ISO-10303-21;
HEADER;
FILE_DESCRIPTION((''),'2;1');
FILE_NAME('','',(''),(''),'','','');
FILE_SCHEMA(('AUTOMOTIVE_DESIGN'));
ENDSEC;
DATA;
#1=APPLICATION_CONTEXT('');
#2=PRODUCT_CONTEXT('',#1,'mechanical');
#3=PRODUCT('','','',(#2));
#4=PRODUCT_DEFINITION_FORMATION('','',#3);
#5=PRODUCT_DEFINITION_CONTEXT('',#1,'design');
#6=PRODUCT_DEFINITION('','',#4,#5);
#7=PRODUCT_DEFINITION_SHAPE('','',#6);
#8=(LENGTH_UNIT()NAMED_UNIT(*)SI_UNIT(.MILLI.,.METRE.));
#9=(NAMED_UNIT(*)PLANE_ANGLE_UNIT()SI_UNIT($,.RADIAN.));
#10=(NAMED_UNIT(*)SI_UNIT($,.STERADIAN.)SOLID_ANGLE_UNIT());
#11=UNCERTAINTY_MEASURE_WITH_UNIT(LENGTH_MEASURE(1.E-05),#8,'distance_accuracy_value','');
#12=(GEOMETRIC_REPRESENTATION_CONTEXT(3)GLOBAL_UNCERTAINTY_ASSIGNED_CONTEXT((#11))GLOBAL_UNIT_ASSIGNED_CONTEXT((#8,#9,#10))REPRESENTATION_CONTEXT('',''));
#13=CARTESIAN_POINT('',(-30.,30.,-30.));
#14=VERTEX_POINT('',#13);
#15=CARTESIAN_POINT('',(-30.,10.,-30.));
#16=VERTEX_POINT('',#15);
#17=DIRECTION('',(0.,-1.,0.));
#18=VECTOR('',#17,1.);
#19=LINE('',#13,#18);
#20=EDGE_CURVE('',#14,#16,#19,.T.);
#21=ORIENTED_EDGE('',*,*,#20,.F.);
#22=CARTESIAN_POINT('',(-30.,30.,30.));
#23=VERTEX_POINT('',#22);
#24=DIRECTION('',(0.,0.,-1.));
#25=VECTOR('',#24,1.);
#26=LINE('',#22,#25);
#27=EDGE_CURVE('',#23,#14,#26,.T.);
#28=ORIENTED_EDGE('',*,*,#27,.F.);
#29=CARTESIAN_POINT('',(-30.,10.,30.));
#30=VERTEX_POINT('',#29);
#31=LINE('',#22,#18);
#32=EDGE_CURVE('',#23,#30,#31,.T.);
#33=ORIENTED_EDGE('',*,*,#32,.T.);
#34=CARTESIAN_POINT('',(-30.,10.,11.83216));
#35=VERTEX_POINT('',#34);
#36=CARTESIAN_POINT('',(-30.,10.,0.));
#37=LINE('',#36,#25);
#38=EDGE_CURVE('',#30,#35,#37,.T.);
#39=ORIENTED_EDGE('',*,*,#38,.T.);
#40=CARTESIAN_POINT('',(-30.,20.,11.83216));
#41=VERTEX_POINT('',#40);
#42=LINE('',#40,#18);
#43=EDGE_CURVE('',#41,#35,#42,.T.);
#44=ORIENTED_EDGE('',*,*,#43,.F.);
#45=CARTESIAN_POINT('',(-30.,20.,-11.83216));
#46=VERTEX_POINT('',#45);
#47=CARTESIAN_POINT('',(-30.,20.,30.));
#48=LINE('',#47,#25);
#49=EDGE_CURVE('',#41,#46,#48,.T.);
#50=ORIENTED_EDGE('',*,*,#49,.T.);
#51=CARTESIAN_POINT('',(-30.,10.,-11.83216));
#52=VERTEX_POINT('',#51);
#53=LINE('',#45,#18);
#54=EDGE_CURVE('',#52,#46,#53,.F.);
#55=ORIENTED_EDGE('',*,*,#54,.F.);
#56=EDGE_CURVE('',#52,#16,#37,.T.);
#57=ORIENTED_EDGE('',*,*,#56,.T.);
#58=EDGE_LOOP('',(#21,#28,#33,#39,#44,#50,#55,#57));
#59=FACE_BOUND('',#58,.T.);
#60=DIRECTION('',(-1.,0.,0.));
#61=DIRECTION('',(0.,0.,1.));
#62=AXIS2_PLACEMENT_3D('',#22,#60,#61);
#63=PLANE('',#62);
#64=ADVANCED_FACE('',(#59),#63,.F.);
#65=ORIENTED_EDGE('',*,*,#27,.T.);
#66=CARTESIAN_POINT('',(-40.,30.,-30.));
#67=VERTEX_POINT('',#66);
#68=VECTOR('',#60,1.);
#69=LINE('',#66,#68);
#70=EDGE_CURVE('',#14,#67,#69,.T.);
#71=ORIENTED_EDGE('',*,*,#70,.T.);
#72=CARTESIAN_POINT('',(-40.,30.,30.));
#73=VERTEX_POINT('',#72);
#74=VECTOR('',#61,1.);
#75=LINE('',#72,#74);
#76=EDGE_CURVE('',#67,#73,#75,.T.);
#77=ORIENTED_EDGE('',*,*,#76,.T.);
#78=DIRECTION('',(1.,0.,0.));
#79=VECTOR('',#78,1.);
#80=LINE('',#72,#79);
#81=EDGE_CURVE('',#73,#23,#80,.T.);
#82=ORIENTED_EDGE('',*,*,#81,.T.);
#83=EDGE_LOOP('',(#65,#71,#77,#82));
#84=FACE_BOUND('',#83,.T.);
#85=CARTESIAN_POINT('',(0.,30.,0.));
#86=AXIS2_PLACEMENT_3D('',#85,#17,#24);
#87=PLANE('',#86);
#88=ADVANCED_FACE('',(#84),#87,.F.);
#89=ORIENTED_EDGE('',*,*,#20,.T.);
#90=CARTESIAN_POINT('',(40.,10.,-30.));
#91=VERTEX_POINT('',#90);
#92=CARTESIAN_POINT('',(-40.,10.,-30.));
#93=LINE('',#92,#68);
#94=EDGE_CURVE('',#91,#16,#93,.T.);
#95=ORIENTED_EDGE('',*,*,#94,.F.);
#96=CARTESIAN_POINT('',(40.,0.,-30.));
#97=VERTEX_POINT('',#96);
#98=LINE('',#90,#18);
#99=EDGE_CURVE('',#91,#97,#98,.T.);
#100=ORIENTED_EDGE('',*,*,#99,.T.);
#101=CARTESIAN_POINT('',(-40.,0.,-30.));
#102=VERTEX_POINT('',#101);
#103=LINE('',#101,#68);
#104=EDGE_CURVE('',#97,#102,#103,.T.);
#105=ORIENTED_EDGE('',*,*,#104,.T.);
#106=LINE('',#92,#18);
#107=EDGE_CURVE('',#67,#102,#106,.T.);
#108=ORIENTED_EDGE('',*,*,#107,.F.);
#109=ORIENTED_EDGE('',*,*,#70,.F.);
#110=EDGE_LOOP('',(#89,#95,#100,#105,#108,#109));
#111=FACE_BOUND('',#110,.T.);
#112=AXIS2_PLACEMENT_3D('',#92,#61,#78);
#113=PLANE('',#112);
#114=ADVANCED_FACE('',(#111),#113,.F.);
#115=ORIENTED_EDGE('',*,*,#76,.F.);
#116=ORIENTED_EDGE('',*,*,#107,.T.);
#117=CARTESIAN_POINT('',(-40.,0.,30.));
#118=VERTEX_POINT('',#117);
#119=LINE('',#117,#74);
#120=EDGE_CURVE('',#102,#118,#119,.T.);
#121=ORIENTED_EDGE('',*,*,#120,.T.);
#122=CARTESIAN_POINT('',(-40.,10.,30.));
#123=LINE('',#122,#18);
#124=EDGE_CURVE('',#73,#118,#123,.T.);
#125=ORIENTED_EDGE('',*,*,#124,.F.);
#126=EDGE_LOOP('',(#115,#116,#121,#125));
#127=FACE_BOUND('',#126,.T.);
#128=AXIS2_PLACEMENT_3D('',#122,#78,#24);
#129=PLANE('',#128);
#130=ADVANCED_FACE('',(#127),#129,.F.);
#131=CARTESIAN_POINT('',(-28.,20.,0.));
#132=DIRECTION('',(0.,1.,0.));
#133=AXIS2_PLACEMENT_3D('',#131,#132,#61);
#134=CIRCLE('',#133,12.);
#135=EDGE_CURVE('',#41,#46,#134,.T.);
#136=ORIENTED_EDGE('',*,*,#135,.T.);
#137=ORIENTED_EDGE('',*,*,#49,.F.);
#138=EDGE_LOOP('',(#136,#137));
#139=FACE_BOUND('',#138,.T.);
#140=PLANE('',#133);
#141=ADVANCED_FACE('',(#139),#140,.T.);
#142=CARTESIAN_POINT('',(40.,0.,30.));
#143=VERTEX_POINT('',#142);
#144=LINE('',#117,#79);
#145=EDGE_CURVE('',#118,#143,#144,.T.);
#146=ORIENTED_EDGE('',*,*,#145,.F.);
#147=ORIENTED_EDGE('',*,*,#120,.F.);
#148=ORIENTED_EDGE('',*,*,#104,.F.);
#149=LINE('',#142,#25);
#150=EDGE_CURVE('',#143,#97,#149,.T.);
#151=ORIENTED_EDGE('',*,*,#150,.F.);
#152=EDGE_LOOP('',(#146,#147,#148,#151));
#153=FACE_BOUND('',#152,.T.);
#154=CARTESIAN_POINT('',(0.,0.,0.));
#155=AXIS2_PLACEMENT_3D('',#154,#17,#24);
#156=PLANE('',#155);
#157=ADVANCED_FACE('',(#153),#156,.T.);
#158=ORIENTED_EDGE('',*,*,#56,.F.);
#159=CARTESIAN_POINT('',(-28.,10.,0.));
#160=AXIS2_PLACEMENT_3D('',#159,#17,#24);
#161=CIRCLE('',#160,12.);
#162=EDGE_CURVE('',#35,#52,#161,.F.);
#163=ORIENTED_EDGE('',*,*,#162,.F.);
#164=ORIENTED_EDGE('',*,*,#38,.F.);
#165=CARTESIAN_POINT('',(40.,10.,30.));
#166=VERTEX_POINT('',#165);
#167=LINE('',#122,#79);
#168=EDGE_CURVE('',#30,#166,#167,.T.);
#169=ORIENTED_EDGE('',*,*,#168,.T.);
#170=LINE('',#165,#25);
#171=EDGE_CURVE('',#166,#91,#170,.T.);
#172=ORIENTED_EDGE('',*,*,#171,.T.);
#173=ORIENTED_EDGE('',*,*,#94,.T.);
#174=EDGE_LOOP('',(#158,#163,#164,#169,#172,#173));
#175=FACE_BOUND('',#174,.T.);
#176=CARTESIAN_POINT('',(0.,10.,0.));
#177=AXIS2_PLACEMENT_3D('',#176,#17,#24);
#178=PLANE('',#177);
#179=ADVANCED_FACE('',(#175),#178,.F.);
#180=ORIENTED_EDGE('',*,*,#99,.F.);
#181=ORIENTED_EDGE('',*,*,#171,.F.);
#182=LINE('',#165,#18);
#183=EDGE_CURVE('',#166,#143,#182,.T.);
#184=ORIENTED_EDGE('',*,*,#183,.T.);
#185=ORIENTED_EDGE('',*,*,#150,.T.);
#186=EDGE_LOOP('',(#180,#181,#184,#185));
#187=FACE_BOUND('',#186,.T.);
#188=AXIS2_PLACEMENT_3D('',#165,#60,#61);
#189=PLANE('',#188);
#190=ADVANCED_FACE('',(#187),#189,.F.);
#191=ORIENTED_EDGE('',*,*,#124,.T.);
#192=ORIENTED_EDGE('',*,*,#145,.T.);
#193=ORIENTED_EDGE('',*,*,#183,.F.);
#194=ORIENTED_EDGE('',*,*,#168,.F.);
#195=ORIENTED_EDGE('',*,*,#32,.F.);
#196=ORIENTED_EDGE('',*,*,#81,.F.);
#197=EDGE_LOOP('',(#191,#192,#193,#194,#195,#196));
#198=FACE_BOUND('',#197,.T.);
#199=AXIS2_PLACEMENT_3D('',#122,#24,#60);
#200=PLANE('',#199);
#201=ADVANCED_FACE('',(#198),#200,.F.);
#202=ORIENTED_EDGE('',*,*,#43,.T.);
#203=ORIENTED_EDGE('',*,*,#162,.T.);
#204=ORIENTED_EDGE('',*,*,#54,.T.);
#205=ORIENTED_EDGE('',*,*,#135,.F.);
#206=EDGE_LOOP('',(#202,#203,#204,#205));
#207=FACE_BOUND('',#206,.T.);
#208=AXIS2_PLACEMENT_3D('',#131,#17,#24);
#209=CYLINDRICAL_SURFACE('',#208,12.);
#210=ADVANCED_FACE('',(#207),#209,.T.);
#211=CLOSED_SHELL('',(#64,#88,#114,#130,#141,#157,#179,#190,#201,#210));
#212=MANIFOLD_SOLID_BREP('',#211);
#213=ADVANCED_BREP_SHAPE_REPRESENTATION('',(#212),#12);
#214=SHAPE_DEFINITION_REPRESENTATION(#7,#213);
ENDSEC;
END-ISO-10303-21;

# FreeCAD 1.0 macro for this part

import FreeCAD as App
import Part
import Sketcher
from FreeCAD import Vector


def add_polygon(sketch, points):
    """Adds a closed chain of lines whose ends are joined by coincident constraints."""
    first, n = sketch.GeometryCount, len(points)
    for a, b in zip(points, points[1:] + points[:1]):
        sketch.addGeometry(Part.LineSegment(App.Vector(*a, 0), App.Vector(*b, 0)), False)
    for i in range(n):
        sketch.addConstraint(Sketcher.Constraint("Coincident", first + i, 2, first + (i + 1) % n, 1))

doc = App.newDocument("Part")
body = doc.addObject("PartDesign::Body", "Body")

# Sketch on XZ plane
sketch1 = body.newObject("Sketcher::SketchObject", "Sketch")
sketch1.AttachmentSupport = (doc.getObject("XZ_Plane"), [""])
sketch1.MapMode = "FlatFace"
add_polygon(sketch1, [(-40, -30), (-40, 30), (40, 30), (40, -30)])  # lines 0-3
sketch1.addConstraint(Sketcher.Constraint("Vertical", 0))
sketch1.addConstraint(Sketcher.Constraint("Horizontal", 1))
sketch1.addConstraint(Sketcher.Constraint("Vertical", 2))
sketch1.addConstraint(Sketcher.Constraint("Horizontal", 3))
sketch1.addConstraint(Sketcher.Constraint("Symmetric", 0, 2, 2, 2, -1, 1))
sketch1.addConstraint(Sketcher.Constraint("DistanceX", 1, 1, 1, 2, 80.0))
sketch1.addConstraint(Sketcher.Constraint("DistanceY", 0, 1, 0, 2, 60.0))
pad1 = body.newObject("PartDesign::Pad", "Pad")
pad1.Profile = sketch1
pad1.Length = 10
pad1.Reversed = True

# Sketch on XZ plane
sketch2 = body.newObject("Sketcher::SketchObject", "Sketch001")
sketch2.AttachmentSupport = (doc.getObject("XZ_Plane"), [""])
sketch2.MapMode = "FlatFace"
add_polygon(sketch2, [(-40, -30), (-40, 30), (-30, 30), (-30, -30)])  # lines 0-3
sketch2.addConstraint(Sketcher.Constraint("Vertical", 0))
sketch2.addConstraint(Sketcher.Constraint("Horizontal", 1))
sketch2.addConstraint(Sketcher.Constraint("Vertical", 2))
sketch2.addConstraint(Sketcher.Constraint("Horizontal", 3))
sketch2.addConstraint(Sketcher.Constraint("DistanceX", 1, 1, 1, 2, 10.0))
sketch2.addConstraint(Sketcher.Constraint("DistanceY", 0, 1, 0, 2, 60.0))
sketch2.addConstraint(Sketcher.Constraint("DistanceX", 0, 2, -1, 1, 40.0))
sketch2.addConstraint(Sketcher.Constraint("DistanceY", -1, 1, 0, 2, 30.0))
pad2 = body.newObject("PartDesign::Pad", "Pad001")
pad2.Profile = sketch2
pad2.Length = 30
pad2.Reversed = True

# Sketch on XZ plane
sketch3 = body.newObject("Sketcher::SketchObject", "Sketch002")
sketch3.AttachmentSupport = (doc.getObject("XZ_Plane"), [""])
sketch3.MapMode = "FlatFace"
sketch3.addGeometry(Part.Circle(Vector(-28, 0, 0), Vector(0, 0, 1), 12), False)
sketch3.addConstraint(Sketcher.Constraint("PointOnObject", 0, 3, -1))
sketch3.addConstraint(Sketcher.Constraint("Diameter", 0, 24.0))
sketch3.addConstraint(Sketcher.Constraint("DistanceX", 0, 3, -1, 1, 28.0))
pad3 = body.newObject("PartDesign::Pad", "Pad002")
pad3.Profile = sketch3
pad3.Length = 20
pad3.Reversed = True

doc.recompute()
